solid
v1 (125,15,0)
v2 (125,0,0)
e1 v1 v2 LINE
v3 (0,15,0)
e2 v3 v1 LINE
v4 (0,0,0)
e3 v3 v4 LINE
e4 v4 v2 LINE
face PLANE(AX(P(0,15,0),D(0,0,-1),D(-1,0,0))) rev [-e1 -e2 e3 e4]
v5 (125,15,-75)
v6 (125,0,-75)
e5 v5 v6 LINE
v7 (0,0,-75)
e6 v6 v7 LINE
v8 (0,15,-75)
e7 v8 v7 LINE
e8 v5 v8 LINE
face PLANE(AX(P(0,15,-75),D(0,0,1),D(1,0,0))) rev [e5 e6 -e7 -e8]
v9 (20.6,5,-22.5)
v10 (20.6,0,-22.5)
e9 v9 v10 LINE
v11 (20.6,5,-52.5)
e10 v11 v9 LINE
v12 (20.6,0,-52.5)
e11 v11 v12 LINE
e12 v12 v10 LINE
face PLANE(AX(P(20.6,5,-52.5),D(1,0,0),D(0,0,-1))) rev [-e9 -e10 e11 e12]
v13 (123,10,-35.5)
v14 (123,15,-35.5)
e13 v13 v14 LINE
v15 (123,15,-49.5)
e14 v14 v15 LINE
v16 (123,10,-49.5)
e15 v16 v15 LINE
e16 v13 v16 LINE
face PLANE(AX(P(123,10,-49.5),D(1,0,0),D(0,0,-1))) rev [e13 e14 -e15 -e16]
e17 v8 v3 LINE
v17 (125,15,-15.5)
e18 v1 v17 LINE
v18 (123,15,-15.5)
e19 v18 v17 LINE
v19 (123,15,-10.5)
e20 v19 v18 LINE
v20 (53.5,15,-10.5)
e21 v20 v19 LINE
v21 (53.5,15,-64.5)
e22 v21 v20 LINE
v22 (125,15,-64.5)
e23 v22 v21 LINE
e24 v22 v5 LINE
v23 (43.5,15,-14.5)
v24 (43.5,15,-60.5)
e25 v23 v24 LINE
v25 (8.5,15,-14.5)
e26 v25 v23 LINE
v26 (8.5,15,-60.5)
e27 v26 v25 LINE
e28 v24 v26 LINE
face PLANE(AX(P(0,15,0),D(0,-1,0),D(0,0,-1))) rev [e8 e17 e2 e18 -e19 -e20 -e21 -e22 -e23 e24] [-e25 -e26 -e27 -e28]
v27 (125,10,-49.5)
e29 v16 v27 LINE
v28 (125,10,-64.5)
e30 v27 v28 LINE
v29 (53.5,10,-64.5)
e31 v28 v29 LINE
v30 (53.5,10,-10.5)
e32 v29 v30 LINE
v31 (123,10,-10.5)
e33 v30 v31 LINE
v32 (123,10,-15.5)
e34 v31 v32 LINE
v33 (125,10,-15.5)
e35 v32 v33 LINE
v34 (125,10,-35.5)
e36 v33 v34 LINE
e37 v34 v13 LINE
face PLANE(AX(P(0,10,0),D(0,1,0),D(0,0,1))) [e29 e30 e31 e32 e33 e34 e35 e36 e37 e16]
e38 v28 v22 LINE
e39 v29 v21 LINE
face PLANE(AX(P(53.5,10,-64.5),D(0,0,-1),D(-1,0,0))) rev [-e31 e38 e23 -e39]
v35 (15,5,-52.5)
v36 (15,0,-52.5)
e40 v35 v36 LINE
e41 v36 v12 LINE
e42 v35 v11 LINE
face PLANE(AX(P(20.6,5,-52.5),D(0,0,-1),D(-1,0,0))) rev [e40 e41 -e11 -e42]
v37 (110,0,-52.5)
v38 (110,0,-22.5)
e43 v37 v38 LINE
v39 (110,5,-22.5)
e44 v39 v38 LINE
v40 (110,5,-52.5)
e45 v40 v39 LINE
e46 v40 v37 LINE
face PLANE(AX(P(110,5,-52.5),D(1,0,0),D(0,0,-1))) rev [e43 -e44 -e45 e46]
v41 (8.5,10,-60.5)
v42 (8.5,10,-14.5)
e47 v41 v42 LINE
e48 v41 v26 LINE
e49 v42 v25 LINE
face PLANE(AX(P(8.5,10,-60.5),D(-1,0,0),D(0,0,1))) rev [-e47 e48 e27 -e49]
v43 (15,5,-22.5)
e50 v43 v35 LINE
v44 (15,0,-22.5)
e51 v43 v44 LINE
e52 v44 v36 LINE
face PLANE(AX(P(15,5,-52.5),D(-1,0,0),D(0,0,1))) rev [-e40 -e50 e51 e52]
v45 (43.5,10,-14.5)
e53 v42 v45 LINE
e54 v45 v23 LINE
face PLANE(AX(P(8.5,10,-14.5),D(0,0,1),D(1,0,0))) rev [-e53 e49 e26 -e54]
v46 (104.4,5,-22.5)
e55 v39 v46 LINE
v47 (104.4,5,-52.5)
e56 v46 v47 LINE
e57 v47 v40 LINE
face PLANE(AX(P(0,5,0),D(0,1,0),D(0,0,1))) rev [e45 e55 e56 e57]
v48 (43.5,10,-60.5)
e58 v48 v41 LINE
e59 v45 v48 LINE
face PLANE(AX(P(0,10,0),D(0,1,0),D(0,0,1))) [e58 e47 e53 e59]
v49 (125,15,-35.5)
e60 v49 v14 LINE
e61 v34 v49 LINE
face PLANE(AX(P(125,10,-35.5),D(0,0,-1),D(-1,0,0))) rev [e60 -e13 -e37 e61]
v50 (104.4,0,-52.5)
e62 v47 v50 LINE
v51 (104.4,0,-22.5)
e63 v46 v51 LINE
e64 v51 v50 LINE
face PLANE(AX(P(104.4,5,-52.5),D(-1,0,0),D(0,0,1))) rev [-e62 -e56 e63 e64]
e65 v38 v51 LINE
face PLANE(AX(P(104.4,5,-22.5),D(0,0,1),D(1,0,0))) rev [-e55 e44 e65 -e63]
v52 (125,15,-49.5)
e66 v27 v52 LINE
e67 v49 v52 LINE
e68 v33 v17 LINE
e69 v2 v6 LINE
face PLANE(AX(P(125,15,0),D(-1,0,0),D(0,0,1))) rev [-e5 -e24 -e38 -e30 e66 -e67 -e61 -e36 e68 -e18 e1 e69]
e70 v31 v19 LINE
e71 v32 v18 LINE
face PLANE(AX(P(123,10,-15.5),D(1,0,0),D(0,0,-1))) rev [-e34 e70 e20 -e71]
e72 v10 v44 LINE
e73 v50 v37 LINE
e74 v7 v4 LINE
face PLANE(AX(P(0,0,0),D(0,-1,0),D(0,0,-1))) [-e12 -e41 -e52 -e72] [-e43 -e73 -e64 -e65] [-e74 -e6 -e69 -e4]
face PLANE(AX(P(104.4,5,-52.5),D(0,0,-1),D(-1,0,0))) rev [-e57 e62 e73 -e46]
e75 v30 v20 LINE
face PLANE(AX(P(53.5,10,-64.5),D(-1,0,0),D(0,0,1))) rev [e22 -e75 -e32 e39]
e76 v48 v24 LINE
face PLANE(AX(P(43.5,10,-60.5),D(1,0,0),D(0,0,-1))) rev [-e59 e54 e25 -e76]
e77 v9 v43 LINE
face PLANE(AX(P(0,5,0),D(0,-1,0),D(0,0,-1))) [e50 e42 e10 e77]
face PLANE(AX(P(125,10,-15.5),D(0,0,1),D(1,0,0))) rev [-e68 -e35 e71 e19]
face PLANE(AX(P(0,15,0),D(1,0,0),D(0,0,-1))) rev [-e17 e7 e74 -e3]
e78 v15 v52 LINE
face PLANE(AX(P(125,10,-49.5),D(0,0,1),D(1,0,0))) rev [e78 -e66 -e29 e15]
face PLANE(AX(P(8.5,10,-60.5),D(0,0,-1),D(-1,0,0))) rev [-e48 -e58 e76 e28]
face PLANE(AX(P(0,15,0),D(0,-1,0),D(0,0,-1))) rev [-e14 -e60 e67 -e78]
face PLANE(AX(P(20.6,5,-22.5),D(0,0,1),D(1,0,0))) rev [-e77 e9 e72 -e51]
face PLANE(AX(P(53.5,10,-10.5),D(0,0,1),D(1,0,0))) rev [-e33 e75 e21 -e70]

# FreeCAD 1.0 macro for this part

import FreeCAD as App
import Part
import Sketcher

V = App.Vector
Q = App.Units.Quantity


def add_polygon(sketch, points):
    """Adds a closed chain of lines whose ends are joined by coincident constraints."""
    first, n = sketch.GeometryCount, len(points)
    for a, b in zip(points, points[1:] + points[:1]):
        sketch.addGeometry(Part.LineSegment(App.Vector(*a, 0), App.Vector(*b, 0)), False)
    for i in range(n):
        sketch.addConstraint(Sketcher.Constraint("Coincident", first + i, 2, first + (i + 1) % n, 1))

doc = App.newDocument("Part")
params = doc.addObject("Spreadsheet::Sheet", "Params")
for row, (alias, value) in enumerate([
    ("sketch1_width", "125 mm"),
    ("sketch1_height", "75 mm"),
    ("pad1_length", "15 mm"),
    ("sketch2_width", "2 mm"),
    ("sketch2_width2", "35 mm"),
    ("sketch2_height", "54 mm"),
    ("sketch2_height2", "5 mm"),
    ("sketch2_height3", "20 mm"),
    ("pocket1_length", "5 mm"),
    ("sketch3_height", "30 mm"),
    ("sketch3_width", "5.6 mm"),
    ("pocket2_length", "5 mm"),
], start=1):
    params.set(f"A{row}", alias)
    params.set(f"B{row}", "=" + value)
    params.setAlias(f"B{row}", alias)

body = doc.addObject("PartDesign::Body", "Body")

sketch1 = body.newObject("Sketcher::SketchObject", "Sketch")
sketch1.AttachmentSupport = (doc.getObject("XZ_Plane"), [""])
sketch1.MapMode = "FlatFace"
add_polygon(sketch1, [(0, -75), (0, 0), (125, 0), (125, -75)])
sketch1.addConstraint([
    Sketcher.Constraint("Vertical", 0),
    Sketcher.Constraint("Horizontal", 1),
    Sketcher.Constraint("Vertical", 2),
    Sketcher.Constraint("Horizontal", 3),
    Sketcher.Constraint("Coincident", 0, 2, -1, 1),
    Sketcher.Constraint("DistanceX", 1, 1, 1, 2, Q("125 mm")),
    Sketcher.Constraint("DistanceY", 0, 1, 0, 2, Q("75 mm")),
])
sketch1.setExpression("Constraints[9]", "Params.sketch1_width")
sketch1.setExpression("Constraints[10]", "Params.sketch1_height")
pad1 = body.newObject("PartDesign::Pad", "Pad")
pad1.Profile = sketch1
pad1.setExpression("Length", "Params.pad1_length")
pad1.Reversed = True

sketch2 = body.newObject("Sketcher::SketchObject", "Sketch001")
sketch2.AttachmentSupport = (doc.getObject("XZ_Plane"), [""])
sketch2.MapMode = "FlatFace"
sketch2.AttachmentOffset = App.Placement(V(0, 0, -15), App.Rotation())
add_polygon(sketch2, [(125, -64.5), (53.5, -64.5), (53.5, -10.5), (123, -10.5), (123, -15.5), (125, -15.5), (125, -35.5), (123, -35.5), (123, -49.5), (125, -49.5)])
add_polygon(sketch2, [(8.5, -60.5), (8.5, -14.5), (43.5, -14.5), (43.5, -60.5)])
sketch2.addConstraint([
    Sketcher.Constraint("Horizontal", 0),
    Sketcher.Constraint("Vertical", 1),
    Sketcher.Constraint("Horizontal", 2),
    Sketcher.Constraint("Vertical", 3),
    Sketcher.Constraint("Horizontal", 4),
    Sketcher.Constraint("Vertical", 5),
    Sketcher.Constraint("Horizontal", 6),
    Sketcher.Constraint("Vertical", 7),
    Sketcher.Constraint("Horizontal", 8),
    Sketcher.Constraint("Vertical", 9),
    Sketcher.Constraint("Vertical", 10),
    Sketcher.Constraint("Horizontal", 11),
    Sketcher.Constraint("Vertical", 12),
    Sketcher.Constraint("Horizontal", 13),
    Sketcher.Constraint("Vertical", 3, 2, 6, 2),
    Sketcher.Constraint("Vertical", 5, 2, 8, 2),
    Sketcher.Constraint("DistanceX", 4, 1, 4, 2, Q("2 mm")),
    Sketcher.Constraint("DistanceX", 11, 1, 11, 2, Q("35 mm")),
    Sketcher.Constraint("DistanceY", 1, 1, 1, 2, Q("54 mm")),
    Sketcher.Constraint("DistanceY", 3, 2, 3, 1, Q("5 mm")),
    Sketcher.Constraint("DistanceY", 5, 2, 5, 1, Q("20 mm")),
    Sketcher.Constraint("DistanceY", 7, 2, 7, 1, Q("14 mm")),
    Sketcher.Constraint("DistanceY", 10, 1, 10, 2, Q("46 mm")),
    Sketcher.Constraint("DistanceX", 0, 2, 0, 1, Q("71.5 mm")),
    Sketcher.Constraint("DistanceX", -1, 1, 2, 2, Q("123 mm")),
    Sketcher.Constraint("DistanceX", 10, 2, 1, 2, Q("45 mm")),
    Sketcher.Constraint("DistanceY", 10, 2, 1, 2, Q("4 mm")),
    Sketcher.Constraint("DistanceY", 0, 2, -1, 1, Q("64.5 mm")),
])
sketch2.setExpression("Constraints[30]", "Params.sketch2_width")
sketch2.setExpression("Constraints[31]", "Params.sketch2_width2")
sketch2.setExpression("Constraints[32]", "Params.sketch2_height")
sketch2.setExpression("Constraints[33]", "Params.sketch2_height2")
sketch2.setExpression("Constraints[34]", "Params.sketch2_height3")
pocket1 = body.newObject("PartDesign::Pocket", "Pocket")
pocket1.Profile = sketch2
pocket1.setExpression("Length", "Params.pocket1_length")
pocket1.Reversed = True

sketch3 = body.newObject("Sketcher::SketchObject", "Sketch002")
sketch3.AttachmentSupport = (doc.getObject("XZ_Plane"), [""])
sketch3.MapMode = "FlatFace"
add_polygon(sketch3, [(15, -22), (15, -52), (21, -52), (21, -22)])
add_polygon(sketch3, [(104, -22), (104, -52), (110, -52), (110, -22)])
sketch3.addConstraint([
    Sketcher.Constraint("Vertical", 0),
    Sketcher.Constraint("Horizontal", 1),
    Sketcher.Constraint("Vertical", 2),
    Sketcher.Constraint("Horizontal", 3),
    Sketcher.Constraint("Vertical", 4),
    Sketcher.Constraint("Horizontal", 5),
    Sketcher.Constraint("Vertical", 6),
    Sketcher.Constraint("Horizontal", 7),
    Sketcher.Constraint("Horizontal", 1, 2, 4, 2),
    Sketcher.Constraint("Horizontal", 3, 2, 6, 2),
    Sketcher.Constraint("Equal", 3, 5),
    Sketcher.Constraint("DistanceY", 0, 2, 0, 1, Q("30 mm")),
    Sketcher.Constraint("DistanceX", 1, 1, 1, 2, Q("5.6 mm")),
    Sketcher.Constraint("DistanceX", -1, 1, 0, 2, Q("15 mm")),
    Sketcher.Constraint("DistanceX", -1, 1, 5, 2, Q("110 mm")),
    Sketcher.Constraint("DistanceY", 0, 2, -1, 1, Q("52.5 mm")),
])
sketch3.setExpression("Constraints[19]", "Params.sketch3_height")
sketch3.setExpression("Constraints[20]", "Params.sketch3_width")
pocket2 = body.newObject("PartDesign::Pocket", "Pocket001")
pocket2.Profile = sketch3
pocket2.setExpression("Length", "Params.pocket2_length")

doc.recompute()
